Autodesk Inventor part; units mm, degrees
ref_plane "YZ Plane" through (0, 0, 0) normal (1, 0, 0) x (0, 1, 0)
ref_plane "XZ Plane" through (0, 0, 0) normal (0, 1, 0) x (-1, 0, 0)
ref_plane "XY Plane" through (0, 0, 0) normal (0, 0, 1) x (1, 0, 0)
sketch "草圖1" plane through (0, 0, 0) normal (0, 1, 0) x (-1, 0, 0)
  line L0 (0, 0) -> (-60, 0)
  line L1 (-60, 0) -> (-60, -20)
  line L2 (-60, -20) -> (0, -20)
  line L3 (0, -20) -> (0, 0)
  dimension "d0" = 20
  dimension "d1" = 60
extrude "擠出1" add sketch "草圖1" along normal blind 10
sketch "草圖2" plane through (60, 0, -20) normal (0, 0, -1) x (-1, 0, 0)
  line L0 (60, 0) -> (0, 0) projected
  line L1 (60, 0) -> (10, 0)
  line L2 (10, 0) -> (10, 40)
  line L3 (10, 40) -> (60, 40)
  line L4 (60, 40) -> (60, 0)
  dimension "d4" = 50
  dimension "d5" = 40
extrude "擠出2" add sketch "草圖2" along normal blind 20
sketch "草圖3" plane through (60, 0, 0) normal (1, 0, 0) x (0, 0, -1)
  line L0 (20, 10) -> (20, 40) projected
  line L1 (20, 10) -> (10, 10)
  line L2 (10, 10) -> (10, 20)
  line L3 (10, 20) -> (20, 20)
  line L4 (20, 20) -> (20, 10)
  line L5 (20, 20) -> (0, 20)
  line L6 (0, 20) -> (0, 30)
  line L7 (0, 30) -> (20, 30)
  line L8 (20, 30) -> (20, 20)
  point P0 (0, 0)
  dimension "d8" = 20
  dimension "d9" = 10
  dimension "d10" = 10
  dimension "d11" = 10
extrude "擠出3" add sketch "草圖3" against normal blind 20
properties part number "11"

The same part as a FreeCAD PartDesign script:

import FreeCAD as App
import Part
import Sketcher
Q = App.Units.Quantity

doc = App.newDocument("Part")
body = doc.addObject("PartDesign::Body", "Body")

sketch1 = body.newObject("Sketcher::SketchObject", "Sketch")
sketch1.AttachmentSupport = (doc.getObject("XZ_Plane"), [""])
sketch1.MapMode = "FlatFace"
sketch1.addGeometry([
    Part.LineSegment(App.Vector(0, -20, 0), App.Vector(0, 0, 0)),
    Part.LineSegment(App.Vector(0, 0, 0), App.Vector(60, 0, 0)),
    Part.LineSegment(App.Vector(60, 0, 0), App.Vector(60, -20, 0)),
    Part.LineSegment(App.Vector(60, -20, 0), App.Vector(0, -20, 0)),
], False)
sketch1.addConstraint([
    Sketcher.Constraint("Coincident", 0, 2, 1, 1),
    Sketcher.Constraint("Coincident", 1, 2, 2, 1),
    Sketcher.Constraint("Coincident", 2, 2, 3, 1),
    Sketcher.Constraint("Coincident", 3, 2, 0, 1),
    Sketcher.Constraint("Vertical", 0),
    Sketcher.Constraint("Horizontal", 1),
    Sketcher.Constraint("Vertical", 2),
    Sketcher.Constraint("Horizontal", 3),
    Sketcher.Constraint("Coincident", 0, 2, -1, 1),
    Sketcher.Constraint("DistanceX", 1, 1, 1, 2, Q("60 mm")),
    Sketcher.Constraint("DistanceY", 0, 1, 0, 2, Q("20 mm")),
])
pad1 = body.newObject("PartDesign::Pad", "Pad")
pad1.Profile = sketch1
pad1.Length = 10
pad1.Reversed = True

sketch2 = body.newObject("Sketcher::SketchObject", "Sketch001")
sketch2.AttachmentSupport = (doc.getObject("XY_Plane"), [""])
sketch2.MapMode = "FlatFace"
sketch2.AttachmentOffset = App.Placement(App.Vector(0, 0, -20), App.Rotation())
sketch2.addGeometry([
    Part.LineSegment(App.Vector(50, 0, 0), App.Vector(0, 0, 0)),
    Part.LineSegment(App.Vector(0, 0, 0), App.Vector(0, 40, 0)),
    Part.LineSegment(App.Vector(0, 40, 0), App.Vector(50, 40, 0)),
    Part.LineSegment(App.Vector(50, 40, 0), App.Vector(50, 0, 0)),
], False)
sketch2.addConstraint([
    Sketcher.Constraint("Coincident", 0, 2, 1, 1),
    Sketcher.Constraint("Coincident", 1, 2, 2, 1),
    Sketcher.Constraint("Coincident", 2, 2, 3, 1),
    Sketcher.Constraint("Coincident", 3, 2, 0, 1),
    Sketcher.Constraint("Horizontal", 0),
    Sketcher.Constraint("Vertical", 1),
    Sketcher.Constraint("Horizontal", 2),
    Sketcher.Constraint("Vertical", 3),
    Sketcher.Constraint("Coincident", 0, 2, -1, 1),
    Sketcher.Constraint("DistanceX", 0, 2, 0, 1, Q("50 mm")),
    Sketcher.Constraint("DistanceY", 1, 1, 1, 2, Q("40 mm")),
])
pad2 = body.newObject("PartDesign::Pad", "Pad001")
pad2.Profile = sketch2
pad2.Length = 20
pad2.Reversed = True

sketch3 = body.newObject("Sketcher::SketchObject", "Sketch002")
sketch3.AttachmentSupport = (doc.getObject("YZ_Plane"), [""])
sketch3.MapMode = "FlatFace"
sketch3.AttachmentOffset = App.Placement(App.Vector(0, 0, 60), App.Rotation())
sketch3.addGeometry([
    Part.LineSegment(App.Vector(10, -10, 0), App.Vector(10, -20, 0)),
    Part.LineSegment(App.Vector(10, -20, 0), App.Vector(30, -20, 0)),
    Part.LineSegment(App.Vector(30, -20, 0), App.Vector(30, 0, 0)),
    Part.LineSegment(App.Vector(30, 0, 0), App.Vector(20, 0, 0)),
    Part.LineSegment(App.Vector(20, 0, 0), App.Vector(20, -10, 0)),
    Part.LineSegment(App.Vector(20, -10, 0), App.Vector(10, -10, 0)),
], False)
sketch3.addConstraint([
    Sketcher.Constraint("Coincident", 0, 2, 1, 1),
    Sketcher.Constraint("Coincident", 1, 2, 2, 1),
    Sketcher.Constraint("Coincident", 2, 2, 3, 1),
    Sketcher.Constraint("Coincident", 3, 2, 4, 1),
    Sketcher.Constraint("Coincident", 4, 2, 5, 1),
    Sketcher.Constraint("Coincident", 5, 2, 0, 1),
    Sketcher.Constraint("Vertical", 0),
    Sketcher.Constraint("Horizontal", 1),
    Sketcher.Constraint("Vertical", 2),
    Sketcher.Constraint("Horizontal", 3),
    Sketcher.Constraint("Vertical", 4),
    Sketcher.Constraint("Horizontal", 5),
    Sketcher.Constraint("PointOnObject", 2, 2, -1),
    Sketcher.Constraint("Equal", 3, 5),
    Sketcher.Constraint("Equal", 5, 0),
    Sketcher.Constraint("Equal", 1, 2),
    Sketcher.Constraint("DistanceX", 1, 1, 1, 2, Q("20 mm")),
    Sketcher.Constraint("DistanceX", -1, 1, 0, 2, Q("10 mm")),
])
pad3 = body.newObject("PartDesign::Pad", "Pad002")
pad3.Profile = sketch3
pad3.Length = 20
pad3.Reversed = True

doc.recompute()
